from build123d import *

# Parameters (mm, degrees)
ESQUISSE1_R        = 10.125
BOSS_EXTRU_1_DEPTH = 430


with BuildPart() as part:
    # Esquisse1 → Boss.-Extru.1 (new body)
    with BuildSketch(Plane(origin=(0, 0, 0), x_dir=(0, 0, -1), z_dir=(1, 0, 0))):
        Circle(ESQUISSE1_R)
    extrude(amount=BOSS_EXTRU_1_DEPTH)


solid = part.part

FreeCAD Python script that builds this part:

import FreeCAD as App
import Part
import Sketcher
from FreeCAD import Vector

doc = App.newDocument("Part")
body = doc.addObject("PartDesign::Body", "Body")

sketch1 = doc.addObject("Sketcher::SketchObject", "Sketch")
body.addObject(sketch1)
sketch1.AttachmentSupport = (doc.YZ_Plane, [""])
sketch1.MapMode = "FlatFace"
sketch1.addGeometry(Part.Circle(Vector(0, 0, 0), Vector(0, 0, 1), 10.125), False)
sketch1.addConstraint(Sketcher.Constraint("Coincident", 0, 3, -1, 1))
sketch1.addConstraint(Sketcher.Constraint("Diameter", 0, 20.25))
pad1 = doc.addObject("PartDesign::Pad", "Pad")
body.addObject(pad1)
pad1.Profile = sketch1
pad1.Length = 430

doc.recompute()
